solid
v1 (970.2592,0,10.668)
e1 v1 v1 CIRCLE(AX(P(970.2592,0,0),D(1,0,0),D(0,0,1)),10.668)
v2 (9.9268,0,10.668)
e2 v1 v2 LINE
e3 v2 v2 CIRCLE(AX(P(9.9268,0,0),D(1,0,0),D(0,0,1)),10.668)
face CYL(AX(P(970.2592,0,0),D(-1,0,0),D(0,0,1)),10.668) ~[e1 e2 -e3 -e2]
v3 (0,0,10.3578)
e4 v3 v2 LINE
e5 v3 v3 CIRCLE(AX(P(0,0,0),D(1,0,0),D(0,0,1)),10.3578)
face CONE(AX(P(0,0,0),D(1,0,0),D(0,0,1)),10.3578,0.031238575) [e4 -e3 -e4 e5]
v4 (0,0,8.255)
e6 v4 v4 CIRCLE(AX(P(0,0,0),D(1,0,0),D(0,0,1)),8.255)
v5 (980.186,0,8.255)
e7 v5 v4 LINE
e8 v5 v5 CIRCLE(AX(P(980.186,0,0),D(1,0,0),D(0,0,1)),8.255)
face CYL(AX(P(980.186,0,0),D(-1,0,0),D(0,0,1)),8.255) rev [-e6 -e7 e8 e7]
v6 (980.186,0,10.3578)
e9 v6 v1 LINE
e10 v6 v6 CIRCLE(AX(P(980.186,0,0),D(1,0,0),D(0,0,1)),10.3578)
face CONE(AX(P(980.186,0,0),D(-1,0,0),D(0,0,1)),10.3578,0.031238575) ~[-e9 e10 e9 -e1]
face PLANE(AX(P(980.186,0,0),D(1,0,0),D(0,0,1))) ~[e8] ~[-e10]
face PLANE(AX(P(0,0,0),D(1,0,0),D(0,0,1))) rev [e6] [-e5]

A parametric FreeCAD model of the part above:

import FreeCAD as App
import Part
import Sketcher
Q = App.Units.Quantity


def add_polygon(sketch, points):
    """Adds a closed chain of lines whose ends are joined by coincident constraints."""
    first, n = sketch.GeometryCount, len(points)
    for a, b in zip(points, points[1:] + points[:1]):
        sketch.addGeometry(Part.LineSegment(App.Vector(*a, 0), App.Vector(*b, 0)), False)
    for i in range(n):
        sketch.addConstraint(Sketcher.Constraint("Coincident", first + i, 2, first + (i + 1) % n, 1))

doc = App.newDocument("Part")
body = doc.addObject("PartDesign::Body", "Body")

# Sketch on XZ plane
sketch1 = body.newObject("Sketcher::SketchObject", "Sketch")
sketch1.AttachmentSupport = (doc.getObject("XZ_Plane"), [""])
sketch1.MapMode = "FlatFace"
add_polygon(sketch1, [(980.2, 10.4), (980.2, 8.3), (0, 8.3), (0, 10.4), (9.9, 10.7), (970.3, 10.7)])  # lines 0-5
sketch1.addConstraint([
    Sketcher.Constraint("Vertical", 0),
    Sketcher.Constraint("Horizontal", 1),
    Sketcher.Constraint("Vertical", 2),
    Sketcher.Constraint("Horizontal", 4),
    Sketcher.Constraint("PointOnObject", 1, 2, -2),
    Sketcher.Constraint("Horizontal", 2, 2, 5, 2),
    Sketcher.Constraint("Equal", 3, 5),
    Sketcher.Constraint("DistanceX", 1, 2, 1, 1, Q("38.59 in")),
    Sketcher.Constraint("Angle", 3, Q("1.7898 deg")),
    Sketcher.Constraint("DistanceY", -1, 1, 3, 2, Q("0.42 in")),
    Sketcher.Constraint("Distance", 3, Q("0.391 in")),
    Sketcher.Constraint("DistanceY", -1, 1, 0, 2, Q("0.325 in")),
])
revolution = body.newObject("PartDesign::Revolution", "Revolution")
revolution.Profile = sketch1
revolution.ReferenceAxis = (sketch1, ["H_Axis"])
revolution.Angle = 360

doc.recompute()
